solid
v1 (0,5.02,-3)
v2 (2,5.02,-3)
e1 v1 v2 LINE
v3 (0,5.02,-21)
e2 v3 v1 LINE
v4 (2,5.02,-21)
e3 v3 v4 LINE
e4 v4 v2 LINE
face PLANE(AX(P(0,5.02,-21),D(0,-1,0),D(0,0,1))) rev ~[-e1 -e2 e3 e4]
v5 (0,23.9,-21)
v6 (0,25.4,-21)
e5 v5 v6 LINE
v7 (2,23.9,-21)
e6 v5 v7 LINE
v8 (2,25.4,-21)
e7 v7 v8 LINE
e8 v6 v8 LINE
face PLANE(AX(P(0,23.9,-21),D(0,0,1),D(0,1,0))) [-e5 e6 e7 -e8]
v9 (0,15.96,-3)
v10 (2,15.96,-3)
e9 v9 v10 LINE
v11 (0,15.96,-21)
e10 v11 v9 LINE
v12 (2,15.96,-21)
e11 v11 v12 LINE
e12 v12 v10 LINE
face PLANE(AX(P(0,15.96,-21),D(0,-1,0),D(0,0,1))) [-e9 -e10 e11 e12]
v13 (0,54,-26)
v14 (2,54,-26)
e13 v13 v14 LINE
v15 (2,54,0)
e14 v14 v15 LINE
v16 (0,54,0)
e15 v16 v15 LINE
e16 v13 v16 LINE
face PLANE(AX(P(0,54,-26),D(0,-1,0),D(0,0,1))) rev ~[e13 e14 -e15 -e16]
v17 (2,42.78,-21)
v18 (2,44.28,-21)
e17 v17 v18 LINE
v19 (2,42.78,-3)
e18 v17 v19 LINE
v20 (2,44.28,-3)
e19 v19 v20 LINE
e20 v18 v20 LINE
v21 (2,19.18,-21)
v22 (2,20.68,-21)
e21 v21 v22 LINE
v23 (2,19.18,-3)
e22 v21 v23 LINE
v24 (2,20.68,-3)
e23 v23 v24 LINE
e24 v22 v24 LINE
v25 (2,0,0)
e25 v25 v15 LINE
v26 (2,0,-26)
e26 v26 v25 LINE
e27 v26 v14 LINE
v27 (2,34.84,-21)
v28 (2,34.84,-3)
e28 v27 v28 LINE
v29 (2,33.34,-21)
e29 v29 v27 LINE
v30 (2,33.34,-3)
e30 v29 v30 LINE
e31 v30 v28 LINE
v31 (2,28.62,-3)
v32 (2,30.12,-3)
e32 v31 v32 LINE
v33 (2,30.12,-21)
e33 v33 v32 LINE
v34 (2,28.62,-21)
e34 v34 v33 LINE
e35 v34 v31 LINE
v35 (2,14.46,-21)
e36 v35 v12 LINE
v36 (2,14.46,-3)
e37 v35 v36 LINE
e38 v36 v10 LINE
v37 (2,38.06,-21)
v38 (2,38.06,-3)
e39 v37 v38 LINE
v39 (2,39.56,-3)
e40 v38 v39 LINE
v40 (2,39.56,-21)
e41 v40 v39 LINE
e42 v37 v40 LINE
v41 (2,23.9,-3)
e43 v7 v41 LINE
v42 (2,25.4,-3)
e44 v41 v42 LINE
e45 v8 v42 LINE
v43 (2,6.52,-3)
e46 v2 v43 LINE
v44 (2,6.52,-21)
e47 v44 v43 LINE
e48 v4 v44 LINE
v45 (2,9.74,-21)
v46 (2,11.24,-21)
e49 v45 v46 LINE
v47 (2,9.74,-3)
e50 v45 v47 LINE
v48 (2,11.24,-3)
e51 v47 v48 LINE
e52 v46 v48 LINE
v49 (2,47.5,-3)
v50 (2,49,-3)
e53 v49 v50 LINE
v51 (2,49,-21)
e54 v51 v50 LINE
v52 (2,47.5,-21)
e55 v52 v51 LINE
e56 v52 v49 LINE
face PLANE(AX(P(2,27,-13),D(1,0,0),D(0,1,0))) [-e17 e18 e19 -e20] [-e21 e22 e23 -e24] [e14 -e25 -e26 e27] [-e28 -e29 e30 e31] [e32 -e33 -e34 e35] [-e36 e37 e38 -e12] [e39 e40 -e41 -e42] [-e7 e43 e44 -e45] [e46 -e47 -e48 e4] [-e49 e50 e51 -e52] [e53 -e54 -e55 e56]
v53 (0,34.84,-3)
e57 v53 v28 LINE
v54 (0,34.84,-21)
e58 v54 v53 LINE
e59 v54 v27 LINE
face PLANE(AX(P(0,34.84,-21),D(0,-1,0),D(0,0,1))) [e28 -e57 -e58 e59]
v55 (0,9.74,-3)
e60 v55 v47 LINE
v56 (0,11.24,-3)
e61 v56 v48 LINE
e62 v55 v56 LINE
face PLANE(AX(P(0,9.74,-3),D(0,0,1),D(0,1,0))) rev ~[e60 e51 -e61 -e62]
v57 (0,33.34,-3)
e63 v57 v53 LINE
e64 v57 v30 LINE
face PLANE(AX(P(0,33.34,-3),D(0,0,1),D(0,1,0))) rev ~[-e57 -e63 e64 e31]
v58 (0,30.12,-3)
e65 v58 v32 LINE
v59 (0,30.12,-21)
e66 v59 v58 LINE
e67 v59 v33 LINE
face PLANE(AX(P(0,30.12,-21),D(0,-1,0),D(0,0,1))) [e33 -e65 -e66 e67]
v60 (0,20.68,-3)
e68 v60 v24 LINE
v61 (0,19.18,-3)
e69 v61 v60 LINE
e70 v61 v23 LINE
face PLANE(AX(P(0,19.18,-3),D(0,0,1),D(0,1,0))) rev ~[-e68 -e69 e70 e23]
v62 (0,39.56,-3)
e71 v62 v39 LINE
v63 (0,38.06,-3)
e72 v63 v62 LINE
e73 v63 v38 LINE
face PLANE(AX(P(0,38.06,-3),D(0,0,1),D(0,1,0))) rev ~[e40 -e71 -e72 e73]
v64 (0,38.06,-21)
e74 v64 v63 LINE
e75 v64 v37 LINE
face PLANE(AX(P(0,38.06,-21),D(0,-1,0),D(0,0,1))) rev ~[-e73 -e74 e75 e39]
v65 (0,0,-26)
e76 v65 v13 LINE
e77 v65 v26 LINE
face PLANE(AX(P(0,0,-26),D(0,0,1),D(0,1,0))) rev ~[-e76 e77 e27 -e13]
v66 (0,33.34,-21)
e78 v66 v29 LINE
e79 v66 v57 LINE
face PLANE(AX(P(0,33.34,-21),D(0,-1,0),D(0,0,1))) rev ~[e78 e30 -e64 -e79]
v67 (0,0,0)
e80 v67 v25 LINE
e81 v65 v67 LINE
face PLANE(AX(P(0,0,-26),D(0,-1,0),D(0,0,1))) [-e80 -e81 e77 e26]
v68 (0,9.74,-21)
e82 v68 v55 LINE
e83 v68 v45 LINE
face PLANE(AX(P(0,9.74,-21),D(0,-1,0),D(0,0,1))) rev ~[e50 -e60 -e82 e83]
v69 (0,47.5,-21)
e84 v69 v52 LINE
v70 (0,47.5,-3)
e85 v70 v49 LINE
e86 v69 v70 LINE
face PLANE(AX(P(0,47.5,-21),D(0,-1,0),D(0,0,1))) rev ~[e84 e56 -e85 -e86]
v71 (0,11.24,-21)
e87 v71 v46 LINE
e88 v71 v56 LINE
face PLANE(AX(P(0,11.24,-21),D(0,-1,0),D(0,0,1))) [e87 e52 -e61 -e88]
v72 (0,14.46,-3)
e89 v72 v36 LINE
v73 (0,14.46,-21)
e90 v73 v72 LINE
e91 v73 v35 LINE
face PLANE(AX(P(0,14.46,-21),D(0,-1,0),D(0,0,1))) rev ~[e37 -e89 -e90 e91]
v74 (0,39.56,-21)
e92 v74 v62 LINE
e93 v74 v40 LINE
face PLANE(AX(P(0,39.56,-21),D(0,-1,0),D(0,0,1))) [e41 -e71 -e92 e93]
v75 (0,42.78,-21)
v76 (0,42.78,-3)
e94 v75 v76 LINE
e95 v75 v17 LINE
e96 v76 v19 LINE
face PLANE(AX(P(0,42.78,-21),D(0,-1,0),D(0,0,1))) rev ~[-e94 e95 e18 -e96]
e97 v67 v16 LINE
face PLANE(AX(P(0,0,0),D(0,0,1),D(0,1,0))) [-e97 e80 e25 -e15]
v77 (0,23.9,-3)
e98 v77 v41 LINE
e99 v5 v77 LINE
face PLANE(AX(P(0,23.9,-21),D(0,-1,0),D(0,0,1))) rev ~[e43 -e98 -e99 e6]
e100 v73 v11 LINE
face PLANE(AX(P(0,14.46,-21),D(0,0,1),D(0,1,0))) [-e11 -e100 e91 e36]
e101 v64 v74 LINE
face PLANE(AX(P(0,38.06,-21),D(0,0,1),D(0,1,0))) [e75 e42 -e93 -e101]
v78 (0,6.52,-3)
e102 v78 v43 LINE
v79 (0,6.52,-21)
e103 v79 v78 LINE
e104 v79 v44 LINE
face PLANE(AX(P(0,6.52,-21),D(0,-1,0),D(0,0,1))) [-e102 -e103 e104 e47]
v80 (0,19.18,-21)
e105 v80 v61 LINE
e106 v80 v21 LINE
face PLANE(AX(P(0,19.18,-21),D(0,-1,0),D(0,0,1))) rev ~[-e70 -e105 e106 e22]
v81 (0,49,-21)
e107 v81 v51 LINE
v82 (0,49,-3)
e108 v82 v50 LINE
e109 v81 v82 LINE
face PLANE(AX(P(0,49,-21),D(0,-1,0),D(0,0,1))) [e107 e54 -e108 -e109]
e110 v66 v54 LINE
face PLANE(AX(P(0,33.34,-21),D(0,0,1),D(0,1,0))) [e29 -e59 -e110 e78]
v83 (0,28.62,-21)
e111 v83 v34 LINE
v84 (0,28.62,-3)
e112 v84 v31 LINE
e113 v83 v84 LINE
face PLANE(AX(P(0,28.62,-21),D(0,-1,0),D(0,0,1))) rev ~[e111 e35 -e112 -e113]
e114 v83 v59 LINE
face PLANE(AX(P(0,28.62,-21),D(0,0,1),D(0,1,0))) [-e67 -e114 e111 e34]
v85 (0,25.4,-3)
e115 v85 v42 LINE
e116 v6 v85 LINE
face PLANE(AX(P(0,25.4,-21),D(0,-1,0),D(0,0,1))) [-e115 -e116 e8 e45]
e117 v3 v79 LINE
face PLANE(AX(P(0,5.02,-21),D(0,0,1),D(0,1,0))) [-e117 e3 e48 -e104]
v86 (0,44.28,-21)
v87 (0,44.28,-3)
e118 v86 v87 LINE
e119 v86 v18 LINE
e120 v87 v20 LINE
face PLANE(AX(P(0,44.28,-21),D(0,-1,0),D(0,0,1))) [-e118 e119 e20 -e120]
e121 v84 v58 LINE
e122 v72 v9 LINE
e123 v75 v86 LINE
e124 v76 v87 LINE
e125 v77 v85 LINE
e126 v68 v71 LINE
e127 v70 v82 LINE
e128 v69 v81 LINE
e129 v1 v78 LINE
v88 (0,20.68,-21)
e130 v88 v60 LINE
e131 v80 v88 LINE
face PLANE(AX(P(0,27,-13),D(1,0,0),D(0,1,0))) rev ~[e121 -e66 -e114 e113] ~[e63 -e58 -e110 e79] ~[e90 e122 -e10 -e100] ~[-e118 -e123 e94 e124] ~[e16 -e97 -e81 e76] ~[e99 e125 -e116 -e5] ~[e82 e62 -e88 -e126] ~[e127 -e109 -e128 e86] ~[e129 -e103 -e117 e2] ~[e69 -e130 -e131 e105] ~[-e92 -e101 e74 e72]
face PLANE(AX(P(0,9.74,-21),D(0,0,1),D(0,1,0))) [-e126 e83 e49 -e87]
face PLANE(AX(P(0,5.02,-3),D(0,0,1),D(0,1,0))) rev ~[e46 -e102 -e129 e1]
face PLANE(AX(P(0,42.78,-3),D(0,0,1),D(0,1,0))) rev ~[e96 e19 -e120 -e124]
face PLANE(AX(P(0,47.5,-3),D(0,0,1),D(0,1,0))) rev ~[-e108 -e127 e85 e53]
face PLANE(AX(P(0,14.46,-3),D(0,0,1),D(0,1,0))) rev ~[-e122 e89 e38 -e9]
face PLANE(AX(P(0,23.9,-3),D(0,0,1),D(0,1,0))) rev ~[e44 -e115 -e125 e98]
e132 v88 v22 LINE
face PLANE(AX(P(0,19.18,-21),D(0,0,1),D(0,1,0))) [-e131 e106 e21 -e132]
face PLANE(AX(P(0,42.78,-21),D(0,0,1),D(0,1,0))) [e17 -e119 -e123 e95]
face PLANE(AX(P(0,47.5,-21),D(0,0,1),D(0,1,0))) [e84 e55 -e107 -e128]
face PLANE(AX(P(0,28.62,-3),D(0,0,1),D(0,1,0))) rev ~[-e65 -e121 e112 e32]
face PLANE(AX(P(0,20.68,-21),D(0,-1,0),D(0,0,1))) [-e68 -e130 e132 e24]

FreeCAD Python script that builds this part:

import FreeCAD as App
import Part
import Sketcher
from FreeCAD import Vector


def add_polygon(sketch, points):
    """Adds a closed chain of lines whose ends are joined by coincident constraints."""
    first, n = sketch.GeometryCount, len(points)
    for a, b in zip(points, points[1:] + points[:1]):
        sketch.addGeometry(Part.LineSegment(App.Vector(*a, 0), App.Vector(*b, 0)), False)
    for i in range(n):
        sketch.addConstraint(Sketcher.Constraint("Coincident", first + i, 2, first + (i + 1) % n, 1))

doc = App.newDocument("Part")
body = doc.addObject("PartDesign::Body", "Body")

sketch1 = doc.addObject("Sketcher::SketchObject", "Sketch")
body.addObject(sketch1)
sketch1.AttachmentSupport = (doc.YZ_Plane, [""])
sketch1.MapMode = "FlatFace"
add_polygon(sketch1, [(0, 0), (0, -26), (54, -26), (54, 0)])
add_polygon(sketch1, [(6.5, -21), (5, -21), (5, -3), (6.5, -3)])
add_polygon(sketch1, [(11.2, -21), (9.7, -21), (9.7, -3), (11.2, -3)])
add_polygon(sketch1, [(16, -21), (14.5, -21), (14.5, -3), (16, -3)])
add_polygon(sketch1, [(20.7, -21), (19.2, -21), (19.2, -3), (20.7, -3)])
add_polygon(sketch1, [(25.4, -21), (23.9, -21), (23.9, -3), (25.4, -3)])
add_polygon(sketch1, [(30.1, -21), (28.6, -21), (28.6, -3), (30.1, -3)])
add_polygon(sketch1, [(34.8, -21), (33.3, -21), (33.3, -3), (34.8, -3)])
add_polygon(sketch1, [(39.6, -21), (38.1, -21), (38.1, -3), (39.6, -3)])
add_polygon(sketch1, [(44.3, -21), (42.8, -21), (42.8, -3), (44.3, -3)])
add_polygon(sketch1, [(49, -21), (47.5, -21), (47.5, -3), (49, -3)])
sketch1.addConstraint([
    Sketcher.Constraint("Vertical", 0),
    Sketcher.Constraint("Horizontal", 1),
    Sketcher.Constraint("Vertical", 2),
    Sketcher.Constraint("Horizontal", 3),
    Sketcher.Constraint("Horizontal", 4),
    Sketcher.Constraint("Vertical", 5),
    Sketcher.Constraint("Horizontal", 6),
    Sketcher.Constraint("Vertical", 7),
    Sketcher.Constraint("Horizontal", 8),
    Sketcher.Constraint("Vertical", 9),
    Sketcher.Constraint("Horizontal", 10),
    Sketcher.Constraint("Vertical", 11),
    Sketcher.Constraint("Horizontal", 12),
    Sketcher.Constraint("Vertical", 13),
    Sketcher.Constraint("Horizontal", 14),
    Sketcher.Constraint("Vertical", 15),
    Sketcher.Constraint("Horizontal", 16),
    Sketcher.Constraint("Vertical", 17),
    Sketcher.Constraint("Horizontal", 18),
    Sketcher.Constraint("Vertical", 19),
    Sketcher.Constraint("Horizontal", 20),
    Sketcher.Constraint("Vertical", 21),
    Sketcher.Constraint("Horizontal", 22),
    Sketcher.Constraint("Vertical", 23),
    Sketcher.Constraint("Horizontal", 24),
    Sketcher.Constraint("Vertical", 25),
    Sketcher.Constraint("Horizontal", 26),
    Sketcher.Constraint("Vertical", 27),
    Sketcher.Constraint("Horizontal", 28),
    Sketcher.Constraint("Vertical", 29),
    Sketcher.Constraint("Horizontal", 30),
    Sketcher.Constraint("Vertical", 31),
    Sketcher.Constraint("Horizontal", 32),
    Sketcher.Constraint("Vertical", 33),
    Sketcher.Constraint("Horizontal", 34),
    Sketcher.Constraint("Vertical", 35),
    Sketcher.Constraint("Horizontal", 36),
    Sketcher.Constraint("Vertical", 37),
    Sketcher.Constraint("Horizontal", 38),
    Sketcher.Constraint("Vertical", 39),
    Sketcher.Constraint("Horizontal", 40),
    Sketcher.Constraint("Vertical", 41),
    Sketcher.Constraint("Horizontal", 42),
    Sketcher.Constraint("Vertical", 43),
    Sketcher.Constraint("Coincident", 3, 2, -1, 1),
    Sketcher.Constraint("Horizontal", 7, 2, 8, 2),
    Sketcher.Constraint("Horizontal", 6, 2, 9, 2),
    Sketcher.Constraint("Horizontal", 11, 2, 12, 2),
    Sketcher.Constraint("Horizontal", 10, 2, 13, 2),
    Sketcher.Constraint("Horizontal", 15, 2, 16, 2),
    Sketcher.Constraint("Horizontal", 14, 2, 17, 2),
    Sketcher.Constraint("Horizontal", 19, 2, 20, 2),
    Sketcher.Constraint("Horizontal", 18, 2, 21, 2),
    Sketcher.Constraint("Horizontal", 23, 2, 24, 2),
    Sketcher.Constraint("Horizontal", 22, 2, 25, 2),
    Sketcher.Constraint("Horizontal", 27, 2, 28, 2),
    Sketcher.Constraint("Horizontal", 26, 2, 29, 2),
    Sketcher.Constraint("Horizontal", 31, 2, 32, 2),
    Sketcher.Constraint("Horizontal", 30, 2, 33, 2),
    Sketcher.Constraint("Horizontal", 35, 2, 36, 2),
    Sketcher.Constraint("Horizontal", 34, 2, 37, 2),
    Sketcher.Constraint("Horizontal", 39, 2, 40, 2),
    Sketcher.Constraint("Horizontal", 38, 2, 41, 2),
    Sketcher.Constraint("Equal", 6, 8),
    Sketcher.Constraint("Equal", 10, 12),
    Sketcher.Constraint("Equal", 14, 16),
    Sketcher.Constraint("Equal", 18, 20),
    Sketcher.Constraint("Equal", 22, 24),
    Sketcher.Constraint("Equal", 26, 28),
    Sketcher.Constraint("Equal", 30, 32),
    Sketcher.Constraint("Equal", 34, 36),
    Sketcher.Constraint("Equal", 38, 40),
    Sketcher.Constraint("DistanceX", 1, 1, 1, 2, 54.0),
    Sketcher.Constraint("DistanceY", 0, 2, 0, 1, 26.0),
    Sketcher.Constraint("DistanceY", 5, 1, 5, 2, 18.0),
    Sketcher.Constraint("DistanceX", 4, 2, 4, 1, 1.5),
    Sketcher.Constraint("DistanceY", 4, 2, -1, 1, 21.0),
    Sketcher.Constraint("DistanceX", -1, 1, 42, 2, 49.0),
    Sketcher.Constraint("DistanceX", -1, 1, 20, 2, 23.9),
    Sketcher.Constraint("DistanceX", -1, 1, 4, 2, 5.02),
    Sketcher.Constraint("DistanceX", -1, 1, 8, 2, 9.74),
    Sketcher.Constraint("DistanceX", -1, 1, 12, 2, 14.46),
    Sketcher.Constraint("DistanceX", -1, 1, 16, 2, 19.18),
    Sketcher.Constraint("DistanceX", -1, 1, 24, 2, 28.62),
    Sketcher.Constraint("DistanceX", -1, 1, 28, 2, 33.34),
    Sketcher.Constraint("DistanceX", -1, 1, 32, 2, 38.06),
    Sketcher.Constraint("DistanceX", -1, 1, 36, 2, 42.78),
])
pad1 = doc.addObject("PartDesign::Pad", "Pad")
body.addObject(pad1)
pad1.Profile = sketch1
pad1.Length = 2

doc.recompute()
